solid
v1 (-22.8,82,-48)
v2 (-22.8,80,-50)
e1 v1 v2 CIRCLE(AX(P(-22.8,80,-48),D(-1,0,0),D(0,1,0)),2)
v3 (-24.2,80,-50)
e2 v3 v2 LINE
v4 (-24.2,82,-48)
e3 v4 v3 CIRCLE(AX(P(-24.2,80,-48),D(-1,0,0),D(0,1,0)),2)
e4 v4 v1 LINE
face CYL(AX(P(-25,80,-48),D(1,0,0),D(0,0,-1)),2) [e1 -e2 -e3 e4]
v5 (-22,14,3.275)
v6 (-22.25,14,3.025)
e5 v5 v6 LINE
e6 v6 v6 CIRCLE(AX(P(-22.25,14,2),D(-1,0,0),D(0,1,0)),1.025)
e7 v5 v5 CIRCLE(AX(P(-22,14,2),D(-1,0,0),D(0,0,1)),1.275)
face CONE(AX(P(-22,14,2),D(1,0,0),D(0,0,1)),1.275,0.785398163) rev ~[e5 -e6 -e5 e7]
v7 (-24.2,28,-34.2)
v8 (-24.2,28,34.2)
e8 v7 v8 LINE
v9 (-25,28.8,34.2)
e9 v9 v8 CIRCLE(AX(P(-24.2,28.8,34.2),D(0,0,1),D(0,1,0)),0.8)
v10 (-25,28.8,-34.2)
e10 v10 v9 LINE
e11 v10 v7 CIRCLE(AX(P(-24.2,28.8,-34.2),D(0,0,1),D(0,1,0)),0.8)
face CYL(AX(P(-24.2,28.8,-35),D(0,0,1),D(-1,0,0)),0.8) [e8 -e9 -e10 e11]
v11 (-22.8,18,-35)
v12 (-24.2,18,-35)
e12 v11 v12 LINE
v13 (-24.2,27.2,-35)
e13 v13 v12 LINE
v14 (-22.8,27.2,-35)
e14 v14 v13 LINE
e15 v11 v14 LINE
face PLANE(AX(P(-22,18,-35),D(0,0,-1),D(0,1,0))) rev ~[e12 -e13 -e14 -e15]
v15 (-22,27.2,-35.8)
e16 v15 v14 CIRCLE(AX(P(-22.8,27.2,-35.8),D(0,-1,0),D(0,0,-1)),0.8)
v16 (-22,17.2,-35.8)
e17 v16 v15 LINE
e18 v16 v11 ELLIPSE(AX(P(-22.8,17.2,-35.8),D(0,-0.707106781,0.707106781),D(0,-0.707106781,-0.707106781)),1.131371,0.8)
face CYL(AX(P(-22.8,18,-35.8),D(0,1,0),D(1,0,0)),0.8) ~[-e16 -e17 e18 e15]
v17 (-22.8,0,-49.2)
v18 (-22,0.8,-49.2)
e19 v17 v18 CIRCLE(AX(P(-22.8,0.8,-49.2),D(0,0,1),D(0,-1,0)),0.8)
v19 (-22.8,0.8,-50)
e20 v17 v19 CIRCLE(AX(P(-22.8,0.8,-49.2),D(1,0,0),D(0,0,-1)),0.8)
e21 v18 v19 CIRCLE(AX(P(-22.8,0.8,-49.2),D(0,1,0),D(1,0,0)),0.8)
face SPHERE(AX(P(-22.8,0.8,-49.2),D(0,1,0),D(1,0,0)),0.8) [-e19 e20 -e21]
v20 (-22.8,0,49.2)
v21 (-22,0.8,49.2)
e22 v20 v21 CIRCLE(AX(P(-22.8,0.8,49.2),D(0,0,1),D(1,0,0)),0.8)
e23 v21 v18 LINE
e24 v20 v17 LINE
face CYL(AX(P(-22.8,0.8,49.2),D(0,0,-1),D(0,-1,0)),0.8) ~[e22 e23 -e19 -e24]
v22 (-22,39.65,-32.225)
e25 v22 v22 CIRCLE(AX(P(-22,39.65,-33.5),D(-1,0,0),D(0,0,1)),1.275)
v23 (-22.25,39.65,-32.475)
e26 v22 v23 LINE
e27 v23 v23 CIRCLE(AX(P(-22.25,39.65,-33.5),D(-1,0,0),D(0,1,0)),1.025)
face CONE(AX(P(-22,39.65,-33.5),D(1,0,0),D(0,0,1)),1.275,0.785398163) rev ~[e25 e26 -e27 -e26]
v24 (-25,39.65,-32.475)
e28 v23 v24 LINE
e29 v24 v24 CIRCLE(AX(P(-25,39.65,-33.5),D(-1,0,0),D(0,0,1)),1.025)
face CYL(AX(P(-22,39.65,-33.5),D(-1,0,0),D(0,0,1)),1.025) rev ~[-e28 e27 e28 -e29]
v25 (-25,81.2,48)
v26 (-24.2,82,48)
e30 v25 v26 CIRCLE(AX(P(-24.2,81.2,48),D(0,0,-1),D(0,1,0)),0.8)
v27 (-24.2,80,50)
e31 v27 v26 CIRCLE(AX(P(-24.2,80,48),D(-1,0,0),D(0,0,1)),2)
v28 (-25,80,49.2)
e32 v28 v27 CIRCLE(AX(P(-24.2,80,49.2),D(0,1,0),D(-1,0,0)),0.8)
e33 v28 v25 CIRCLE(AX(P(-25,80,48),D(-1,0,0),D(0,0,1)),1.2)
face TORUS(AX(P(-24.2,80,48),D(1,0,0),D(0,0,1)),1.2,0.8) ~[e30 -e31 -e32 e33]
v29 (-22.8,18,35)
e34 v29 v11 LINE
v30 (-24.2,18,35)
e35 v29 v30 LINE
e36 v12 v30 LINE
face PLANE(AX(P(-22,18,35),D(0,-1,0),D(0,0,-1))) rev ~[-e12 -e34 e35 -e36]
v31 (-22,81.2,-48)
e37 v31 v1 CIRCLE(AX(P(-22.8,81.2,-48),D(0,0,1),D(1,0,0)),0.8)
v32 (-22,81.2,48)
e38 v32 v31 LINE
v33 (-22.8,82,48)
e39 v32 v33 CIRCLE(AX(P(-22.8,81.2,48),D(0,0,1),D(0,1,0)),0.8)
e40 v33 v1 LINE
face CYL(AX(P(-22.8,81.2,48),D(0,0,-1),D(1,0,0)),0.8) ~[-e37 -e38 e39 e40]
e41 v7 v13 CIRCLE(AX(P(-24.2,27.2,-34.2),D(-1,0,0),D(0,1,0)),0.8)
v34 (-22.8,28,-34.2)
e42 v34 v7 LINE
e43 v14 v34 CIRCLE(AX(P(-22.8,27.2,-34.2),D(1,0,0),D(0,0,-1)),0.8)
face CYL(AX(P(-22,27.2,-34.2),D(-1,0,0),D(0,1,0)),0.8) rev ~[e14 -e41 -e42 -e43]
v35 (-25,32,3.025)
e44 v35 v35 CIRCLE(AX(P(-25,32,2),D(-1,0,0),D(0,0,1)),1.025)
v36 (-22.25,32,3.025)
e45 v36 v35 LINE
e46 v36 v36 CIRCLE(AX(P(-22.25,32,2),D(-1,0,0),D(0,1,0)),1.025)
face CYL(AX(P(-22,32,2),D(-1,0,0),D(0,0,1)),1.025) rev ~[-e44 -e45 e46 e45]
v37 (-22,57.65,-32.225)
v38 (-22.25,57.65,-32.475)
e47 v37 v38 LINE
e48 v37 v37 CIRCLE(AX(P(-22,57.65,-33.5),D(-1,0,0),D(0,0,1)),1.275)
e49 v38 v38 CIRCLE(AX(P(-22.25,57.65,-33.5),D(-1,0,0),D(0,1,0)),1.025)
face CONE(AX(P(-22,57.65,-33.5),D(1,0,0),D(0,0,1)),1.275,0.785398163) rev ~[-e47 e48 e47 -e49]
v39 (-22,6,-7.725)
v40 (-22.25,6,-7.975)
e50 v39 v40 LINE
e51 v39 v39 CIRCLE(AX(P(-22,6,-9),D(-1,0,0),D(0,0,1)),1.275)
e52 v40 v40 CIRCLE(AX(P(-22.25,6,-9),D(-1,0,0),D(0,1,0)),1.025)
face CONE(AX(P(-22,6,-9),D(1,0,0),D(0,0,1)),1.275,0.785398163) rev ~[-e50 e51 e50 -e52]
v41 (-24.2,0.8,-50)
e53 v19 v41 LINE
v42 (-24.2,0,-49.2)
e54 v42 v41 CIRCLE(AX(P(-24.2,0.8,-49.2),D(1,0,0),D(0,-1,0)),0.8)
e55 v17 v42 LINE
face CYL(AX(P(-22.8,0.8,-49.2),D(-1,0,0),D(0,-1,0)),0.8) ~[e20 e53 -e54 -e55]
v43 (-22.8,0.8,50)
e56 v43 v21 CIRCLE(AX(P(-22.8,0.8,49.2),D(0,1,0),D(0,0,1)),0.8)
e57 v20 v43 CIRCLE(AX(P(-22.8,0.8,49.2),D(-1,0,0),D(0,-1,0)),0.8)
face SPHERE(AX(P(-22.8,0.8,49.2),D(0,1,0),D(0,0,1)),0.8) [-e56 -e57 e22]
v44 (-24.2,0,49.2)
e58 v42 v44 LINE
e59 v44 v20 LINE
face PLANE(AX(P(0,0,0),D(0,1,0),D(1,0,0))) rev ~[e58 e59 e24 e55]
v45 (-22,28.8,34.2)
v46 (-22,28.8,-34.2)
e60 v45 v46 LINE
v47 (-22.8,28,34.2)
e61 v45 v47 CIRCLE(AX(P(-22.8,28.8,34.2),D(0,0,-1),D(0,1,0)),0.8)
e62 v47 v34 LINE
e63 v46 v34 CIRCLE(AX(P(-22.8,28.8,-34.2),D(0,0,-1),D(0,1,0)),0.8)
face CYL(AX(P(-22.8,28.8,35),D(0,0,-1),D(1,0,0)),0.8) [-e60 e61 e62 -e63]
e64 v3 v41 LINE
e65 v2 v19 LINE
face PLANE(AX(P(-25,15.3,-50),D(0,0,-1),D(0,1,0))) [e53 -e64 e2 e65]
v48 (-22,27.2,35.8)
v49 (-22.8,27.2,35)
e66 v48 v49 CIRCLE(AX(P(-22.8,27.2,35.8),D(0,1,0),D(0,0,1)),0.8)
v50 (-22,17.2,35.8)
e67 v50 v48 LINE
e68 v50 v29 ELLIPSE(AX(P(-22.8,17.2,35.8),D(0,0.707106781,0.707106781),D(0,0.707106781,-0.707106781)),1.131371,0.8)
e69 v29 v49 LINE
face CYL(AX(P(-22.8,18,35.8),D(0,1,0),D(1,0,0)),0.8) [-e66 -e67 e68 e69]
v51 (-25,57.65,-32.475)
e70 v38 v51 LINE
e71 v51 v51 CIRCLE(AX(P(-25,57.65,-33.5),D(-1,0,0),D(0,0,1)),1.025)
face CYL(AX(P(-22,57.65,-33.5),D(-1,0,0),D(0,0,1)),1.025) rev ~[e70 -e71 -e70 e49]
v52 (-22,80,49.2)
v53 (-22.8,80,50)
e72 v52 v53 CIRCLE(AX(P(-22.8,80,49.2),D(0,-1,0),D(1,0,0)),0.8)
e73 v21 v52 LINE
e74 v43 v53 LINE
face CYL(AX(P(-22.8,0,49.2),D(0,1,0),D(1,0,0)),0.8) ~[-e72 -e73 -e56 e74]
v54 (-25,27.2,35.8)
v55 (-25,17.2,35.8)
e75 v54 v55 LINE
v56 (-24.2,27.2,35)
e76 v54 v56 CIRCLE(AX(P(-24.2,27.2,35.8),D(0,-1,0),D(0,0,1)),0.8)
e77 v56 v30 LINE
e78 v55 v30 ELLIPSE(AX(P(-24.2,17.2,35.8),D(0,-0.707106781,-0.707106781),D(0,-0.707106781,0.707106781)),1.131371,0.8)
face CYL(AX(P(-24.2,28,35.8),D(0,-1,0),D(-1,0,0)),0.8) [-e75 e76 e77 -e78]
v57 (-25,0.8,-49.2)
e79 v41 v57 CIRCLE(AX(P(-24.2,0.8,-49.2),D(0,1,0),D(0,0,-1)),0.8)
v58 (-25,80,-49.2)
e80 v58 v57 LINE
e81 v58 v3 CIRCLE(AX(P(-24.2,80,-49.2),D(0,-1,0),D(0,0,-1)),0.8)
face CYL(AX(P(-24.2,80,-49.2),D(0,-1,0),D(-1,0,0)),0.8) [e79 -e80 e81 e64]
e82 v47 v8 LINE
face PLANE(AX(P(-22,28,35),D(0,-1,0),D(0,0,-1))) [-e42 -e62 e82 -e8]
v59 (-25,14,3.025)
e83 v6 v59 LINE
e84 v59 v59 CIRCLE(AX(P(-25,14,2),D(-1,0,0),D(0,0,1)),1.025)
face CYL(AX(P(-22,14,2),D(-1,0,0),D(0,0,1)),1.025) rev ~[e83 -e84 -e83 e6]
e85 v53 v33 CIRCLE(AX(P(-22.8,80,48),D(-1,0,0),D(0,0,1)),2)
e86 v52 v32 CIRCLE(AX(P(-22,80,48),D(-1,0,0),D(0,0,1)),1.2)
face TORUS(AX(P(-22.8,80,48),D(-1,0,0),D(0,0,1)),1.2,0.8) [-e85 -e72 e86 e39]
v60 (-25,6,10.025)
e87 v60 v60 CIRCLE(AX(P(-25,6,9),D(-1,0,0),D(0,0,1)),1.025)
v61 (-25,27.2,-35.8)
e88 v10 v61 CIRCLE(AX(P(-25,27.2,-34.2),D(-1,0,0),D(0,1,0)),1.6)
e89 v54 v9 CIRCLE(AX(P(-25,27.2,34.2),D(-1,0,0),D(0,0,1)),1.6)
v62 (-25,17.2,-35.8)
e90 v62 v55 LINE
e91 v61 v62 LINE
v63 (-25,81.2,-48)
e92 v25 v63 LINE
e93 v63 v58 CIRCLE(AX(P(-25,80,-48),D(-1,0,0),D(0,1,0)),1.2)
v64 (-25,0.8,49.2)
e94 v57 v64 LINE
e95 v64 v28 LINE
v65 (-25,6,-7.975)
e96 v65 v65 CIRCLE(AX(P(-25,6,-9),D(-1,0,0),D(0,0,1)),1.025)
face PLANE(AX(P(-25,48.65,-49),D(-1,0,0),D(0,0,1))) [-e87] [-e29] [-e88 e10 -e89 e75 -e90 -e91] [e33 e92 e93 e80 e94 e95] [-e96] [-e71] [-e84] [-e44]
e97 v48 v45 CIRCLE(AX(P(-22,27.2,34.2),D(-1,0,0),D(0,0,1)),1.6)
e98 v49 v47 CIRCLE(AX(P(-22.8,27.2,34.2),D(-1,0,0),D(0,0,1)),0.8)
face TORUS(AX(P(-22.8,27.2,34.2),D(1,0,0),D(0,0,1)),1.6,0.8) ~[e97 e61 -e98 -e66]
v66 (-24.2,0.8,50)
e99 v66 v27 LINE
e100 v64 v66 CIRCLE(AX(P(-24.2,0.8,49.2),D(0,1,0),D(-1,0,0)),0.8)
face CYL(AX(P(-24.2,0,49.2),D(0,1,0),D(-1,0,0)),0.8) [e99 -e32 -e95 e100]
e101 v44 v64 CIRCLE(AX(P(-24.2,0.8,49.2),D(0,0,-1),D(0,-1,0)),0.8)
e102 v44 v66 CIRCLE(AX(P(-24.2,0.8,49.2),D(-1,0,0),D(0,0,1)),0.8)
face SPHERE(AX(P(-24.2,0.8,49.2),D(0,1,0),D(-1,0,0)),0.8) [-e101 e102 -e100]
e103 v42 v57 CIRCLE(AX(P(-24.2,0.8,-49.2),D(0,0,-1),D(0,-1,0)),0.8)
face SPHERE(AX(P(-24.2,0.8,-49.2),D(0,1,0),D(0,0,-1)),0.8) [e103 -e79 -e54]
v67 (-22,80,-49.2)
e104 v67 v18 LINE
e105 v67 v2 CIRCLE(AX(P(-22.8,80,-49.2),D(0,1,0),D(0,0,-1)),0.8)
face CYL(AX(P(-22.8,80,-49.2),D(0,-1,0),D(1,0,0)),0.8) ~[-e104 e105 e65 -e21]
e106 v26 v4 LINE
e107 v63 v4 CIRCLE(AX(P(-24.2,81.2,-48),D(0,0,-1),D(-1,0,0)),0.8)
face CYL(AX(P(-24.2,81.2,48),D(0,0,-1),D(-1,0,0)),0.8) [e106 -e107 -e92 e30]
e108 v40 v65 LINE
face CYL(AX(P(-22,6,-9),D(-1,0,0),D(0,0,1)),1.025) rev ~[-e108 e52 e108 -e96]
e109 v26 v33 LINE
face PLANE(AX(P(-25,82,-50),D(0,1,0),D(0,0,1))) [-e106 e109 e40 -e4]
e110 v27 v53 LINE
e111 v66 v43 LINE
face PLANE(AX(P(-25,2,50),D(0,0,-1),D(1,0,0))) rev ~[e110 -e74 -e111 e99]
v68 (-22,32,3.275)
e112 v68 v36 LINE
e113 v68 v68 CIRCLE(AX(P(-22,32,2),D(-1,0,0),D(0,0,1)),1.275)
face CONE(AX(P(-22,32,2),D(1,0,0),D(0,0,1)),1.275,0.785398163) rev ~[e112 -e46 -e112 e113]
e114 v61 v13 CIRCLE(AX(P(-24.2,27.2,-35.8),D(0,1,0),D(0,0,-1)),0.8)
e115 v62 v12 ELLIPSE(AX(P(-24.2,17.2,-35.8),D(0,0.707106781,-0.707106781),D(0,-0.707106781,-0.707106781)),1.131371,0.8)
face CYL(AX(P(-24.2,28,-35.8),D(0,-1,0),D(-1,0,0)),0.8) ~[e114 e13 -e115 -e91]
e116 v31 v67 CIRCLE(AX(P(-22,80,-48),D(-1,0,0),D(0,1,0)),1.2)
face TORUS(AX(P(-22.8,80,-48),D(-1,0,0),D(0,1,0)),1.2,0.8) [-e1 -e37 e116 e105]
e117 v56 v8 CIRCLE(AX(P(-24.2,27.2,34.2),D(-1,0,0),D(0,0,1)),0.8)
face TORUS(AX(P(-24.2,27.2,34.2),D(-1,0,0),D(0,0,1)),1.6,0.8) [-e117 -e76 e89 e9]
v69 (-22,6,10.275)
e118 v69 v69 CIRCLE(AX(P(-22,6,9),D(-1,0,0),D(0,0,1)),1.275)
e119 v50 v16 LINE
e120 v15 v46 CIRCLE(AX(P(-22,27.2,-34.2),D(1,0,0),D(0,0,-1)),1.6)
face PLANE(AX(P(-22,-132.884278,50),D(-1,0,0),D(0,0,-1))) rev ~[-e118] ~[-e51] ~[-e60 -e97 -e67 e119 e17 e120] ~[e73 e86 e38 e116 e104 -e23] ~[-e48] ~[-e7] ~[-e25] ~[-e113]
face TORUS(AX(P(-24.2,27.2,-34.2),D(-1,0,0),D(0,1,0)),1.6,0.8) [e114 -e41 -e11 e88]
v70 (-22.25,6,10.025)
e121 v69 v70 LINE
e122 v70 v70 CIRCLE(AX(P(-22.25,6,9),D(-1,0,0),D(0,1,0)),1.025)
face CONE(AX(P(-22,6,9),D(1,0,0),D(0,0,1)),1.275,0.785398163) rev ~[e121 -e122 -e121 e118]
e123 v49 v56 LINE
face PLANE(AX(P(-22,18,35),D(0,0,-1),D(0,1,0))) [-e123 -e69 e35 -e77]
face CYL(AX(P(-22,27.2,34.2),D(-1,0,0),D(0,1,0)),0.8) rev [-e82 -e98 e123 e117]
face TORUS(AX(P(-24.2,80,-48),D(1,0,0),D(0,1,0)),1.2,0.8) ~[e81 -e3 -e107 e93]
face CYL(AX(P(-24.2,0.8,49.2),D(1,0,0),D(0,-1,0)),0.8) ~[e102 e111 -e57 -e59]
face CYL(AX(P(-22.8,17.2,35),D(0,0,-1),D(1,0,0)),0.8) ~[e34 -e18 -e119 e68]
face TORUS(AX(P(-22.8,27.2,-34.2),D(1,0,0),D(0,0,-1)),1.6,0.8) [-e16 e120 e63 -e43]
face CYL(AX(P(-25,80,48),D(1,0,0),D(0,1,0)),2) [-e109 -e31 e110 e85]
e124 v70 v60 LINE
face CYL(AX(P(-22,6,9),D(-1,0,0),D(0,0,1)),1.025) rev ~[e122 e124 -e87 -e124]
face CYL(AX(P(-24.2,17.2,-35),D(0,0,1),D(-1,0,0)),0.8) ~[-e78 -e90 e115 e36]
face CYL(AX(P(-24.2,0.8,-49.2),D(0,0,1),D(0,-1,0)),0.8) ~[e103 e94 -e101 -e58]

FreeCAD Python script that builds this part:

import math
import FreeCAD as App
import Part
import Sketcher


def edges_at(feature, points):
    """Names of the edges that pass closest to the given points."""
    edges = feature.Shape.Edges
    near = lambda p: min(range(len(edges)), key=lambda i: edges[i].distToShape(Part.Vertex(*p))[0])
    return sorted({f"Edge{near(p) + 1}" for p in points})

doc = App.newDocument("Part")
body = doc.addObject("PartDesign::Body", "Body")

sketch1 = doc.addObject("Sketcher::SketchObject", "Sketch")
body.addObject(sketch1)
sketch1.AttachmentSupport = (doc.XZ_Plane, [""])
sketch1.MapMode = "FlatFace"
sketch1.addGeometry([
    Part.LineSegment(App.Vector(-25, -50, 0), App.Vector(-25, 50, 0)),
    Part.LineSegment(App.Vector(-25, 50, 0), App.Vector(25, 50, 0)),
    Part.LineSegment(App.Vector(25, 50, 0), App.Vector(25, -50, 0)),
    Part.LineSegment(App.Vector(25, -50, 0), App.Vector(-25, -50, 0)),
], False)
sketch1.addConstraint([
    Sketcher.Constraint("Coincident", 0, 2, 1, 1),
    Sketcher.Constraint("Coincident", 1, 2, 2, 1),
    Sketcher.Constraint("Coincident", 2, 2, 3, 1),
    Sketcher.Constraint("Coincident", 3, 2, 0, 1),
    Sketcher.Constraint("Vertical", 0),
    Sketcher.Constraint("Horizontal", 1),
    Sketcher.Constraint("Vertical", 2),
    Sketcher.Constraint("Horizontal", 3),
    Sketcher.Constraint("Symmetric", 0, 2, 2, 2, -1, 1),
    Sketcher.Constraint("DistanceX", 1, 1, 1, 2, 50.0),
    Sketcher.Constraint("DistanceY", 0, 1, 0, 2, 100.0),
])
pad1 = doc.addObject("PartDesign::Pad", "Pad")
body.addObject(pad1)
pad1.Profile = sketch1
pad1.Length = 2
pad1.Reversed = True

sketch2 = doc.addObject("Sketcher::SketchObject", "Sketch001")
body.addObject(sketch2)
sketch2.AttachmentSupport = (doc.XZ_Plane, [""])
sketch2.MapMode = "FlatFace"
sketch2.AttachmentOffset = App.Placement(App.Vector(0, 0, -2), App.Rotation())
sketch2.addGeometry([
    Part.LineSegment(App.Vector(-25, -50, 0), App.Vector(-25, 50, 0)),
    Part.LineSegment(App.Vector(-25, 50, 0), App.Vector(-22, 50, 0)),
    Part.LineSegment(App.Vector(-22, 50, 0), App.Vector(-22, -50, 0)),
    Part.LineSegment(App.Vector(-22, -50, 0), App.Vector(-25, -50, 0)),
], False)
sketch2.addConstraint([
    Sketcher.Constraint("Coincident", 0, 2, 1, 1),
    Sketcher.Constraint("Coincident", 1, 2, 2, 1),
    Sketcher.Constraint("Coincident", 2, 2, 3, 1),
    Sketcher.Constraint("Coincident", 3, 2, 0, 1),
    Sketcher.Constraint("Vertical", 0),
    Sketcher.Constraint("Horizontal", 1),
    Sketcher.Constraint("Vertical", 2),
    Sketcher.Constraint("Horizontal", 3),
    Sketcher.Constraint("DistanceX", 1, 1, 1, 2, 3.0),
    Sketcher.Constraint("DistanceY", 0, 1, 0, 2, 100.0),
    Sketcher.Constraint("DistanceX", 0, 2, -1, 1, 25.0),
    Sketcher.Constraint("DistanceY", -1, 1, 0, 2, 50.0),
])
pad2 = doc.addObject("PartDesign::Pad", "Pad001")
body.addObject(pad2)
pad2.Profile = sketch2
pad2.Length = 80
pad2.Reversed = True

sketch3 = doc.addObject("Sketcher::SketchObject", "Sketch002")
body.addObject(sketch3)
sketch3.AttachmentSupport = (doc.YZ_Plane, [""])
sketch3.MapMode = "FlatFace"
sketch3.AttachmentOffset = App.Placement(App.Vector(0, 0, -25), App.Rotation())
sketch3.addGeometry([
    Part.LineSegment(App.Vector(82, -50, 0), App.Vector(15.3, -50, 0)),
    Part.LineSegment(App.Vector(15.3, -50, 0), App.Vector(15.3, -48, 0)),
    Part.LineSegment(App.Vector(15.3, -48, 0), App.Vector(82, -48, 0)),
    Part.LineSegment(App.Vector(82, -48, 0), App.Vector(82, -50, 0)),
], False)
sketch3.addConstraint([
    Sketcher.Constraint("Coincident", 0, 2, 1, 1),
    Sketcher.Constraint("Coincident", 1, 2, 2, 1),
    Sketcher.Constraint("Coincident", 2, 2, 3, 1),
    Sketcher.Constraint("Coincident", 3, 2, 0, 1),
    Sketcher.Constraint("Horizontal", 0),
    Sketcher.Constraint("Vertical", 1),
    Sketcher.Constraint("Horizontal", 2),
    Sketcher.Constraint("Vertical", 3),
    Sketcher.Constraint("DistanceY", 1, 1, 1, 2, 2.0),
    Sketcher.Constraint("DistanceX", 0, 2, 0, 1, 66.7),
    Sketcher.Constraint("DistanceY", 0, 2, -1, 1, 50.0),
    Sketcher.Constraint("DistanceX", -1, 1, 2, 2, 82.0),
])
pad3 = doc.addObject("PartDesign::Pad", "Pad002")
body.addObject(pad3)
pad3.Profile = sketch3
pad3.Length = 70
pad3.Reversed = True

sketch4 = doc.addObject("Sketcher::SketchObject", "Sketch003")
body.addObject(sketch4)
sketch4.AttachmentSupport = (doc.XY_Plane, [""])
sketch4.MapMode = "FlatFace"
sketch4.AttachmentOffset = App.Placement(App.Vector(0, 0, -50), App.Rotation())
sketch4.addGeometry([
    Part.LineSegment(App.Vector(-95, 82, 0), App.Vector(-61.65, 82, 0)),
    Part.ArcOfCircle(Part.Circle(App.Vector(-61.65, 48.65, 0), App.Vector(0, 0, 1), 33.35), math.radians(90), math.radians(180)),
    Part.LineSegment(App.Vector(-95, 48.65, 0), App.Vector(-95, 82, 0)),
], False)
sketch4.addConstraint([
    Sketcher.Constraint("Tangent", 0, 2, 1, 1),
    Sketcher.Constraint("Tangent", 1, 2, 2, 1),
    Sketcher.Constraint("Coincident", 2, 2, 0, 1),
    Sketcher.Constraint("Horizontal", 0),
    Sketcher.Constraint("Vertical", 2),
    Sketcher.Constraint("Radius", 1, 33.35),
    Sketcher.Constraint("DistanceY", -1, 1, 0, 2, 82.0),
    Sketcher.Constraint("DistanceX", 1, 2, -1, 1, 95.0),
])
pocket1 = doc.addObject("PartDesign::Pocket", "Pocket")
body.addObject(pocket1)
pocket1.Profile = sketch4
pocket1.Type = "UpToFirst"
pocket1.Reversed = True

sketch5 = doc.addObject("Sketcher::SketchObject", "Sketch004")
body.addObject(sketch5)
sketch5.AttachmentSupport = (doc.XY_Plane, [""])
sketch5.MapMode = "FlatFace"
sketch5.AttachmentOffset = App.Placement(App.Vector(0, 0, -50), App.Rotation())
sketch5.addGeometry([
    Part.ArcOfCircle(Part.Circle(App.Vector(-61.65, 48.65, 0), App.Vector(0, 0, 1), 33.35), math.radians(180), math.radians(270)),
    Part.LineSegment(App.Vector(-61.65, 15.3, 0), App.Vector(-95, 15.3, 0)),
    Part.LineSegment(App.Vector(-95, 15.3, 0), App.Vector(-95, 48.65, 0)),
], False)
sketch5.addConstraint([
    Sketcher.Constraint("Tangent", 0, 2, 1, 1),
    Sketcher.Constraint("Coincident", 1, 2, 2, 1),
    Sketcher.Constraint("Tangent", 2, 2, 0, 1),
    Sketcher.Constraint("Horizontal", 1),
    Sketcher.Constraint("Vertical", 2),
    Sketcher.Constraint("Radius", 0, 33.35),
    Sketcher.Constraint("DistanceX", 1, 2, -1, 1, 95.0),
    Sketcher.Constraint("DistanceY", -1, 1, 0, 2, 15.3),
])
pocket2 = doc.addObject("PartDesign::Pocket", "Pocket001")
body.addObject(pocket2)
pocket2.Profile = sketch5
pocket2.Type = "UpToFirst"
pocket2.Reversed = True

sketch6 = doc.addObject("Sketcher::SketchObject", "Sketch005")
body.addObject(sketch6)
sketch6.AttachmentSupport = (doc.YZ_Plane, [""])
sketch6.MapMode = "FlatFace"
sketch6.AttachmentOffset = App.Placement(App.Vector(0, 0, -25), App.Rotation())
sketch6.addGeometry([
    Part.LineSegment(App.Vector(82, 6, 0), App.Vector(15.3, 6, 0)),
    Part.LineSegment(App.Vector(15.3, 6, 0), App.Vector(15.3, 8, 0)),
    Part.LineSegment(App.Vector(15.3, 8, 0), App.Vector(82, 8, 0)),
    Part.LineSegment(App.Vector(82, 8, 0), App.Vector(82, 6, 0)),
], False)
sketch6.addConstraint([
    Sketcher.Constraint("Coincident", 0, 2, 1, 1),
    Sketcher.Constraint("Coincident", 1, 2, 2, 1),
    Sketcher.Constraint("Coincident", 2, 2, 3, 1),
    Sketcher.Constraint("Coincident", 3, 2, 0, 1),
    Sketcher.Constraint("Horizontal", 0),
    Sketcher.Constraint("Vertical", 1),
    Sketcher.Constraint("Horizontal", 2),
    Sketcher.Constraint("Vertical", 3),
    Sketcher.Constraint("DistanceY", 1, 1, 1, 2, 2.0),
    Sketcher.Constraint("DistanceX", 0, 2, 0, 1, 66.7),
    Sketcher.Constraint("DistanceY", -1, 1, 0, 2, 6.0),
    Sketcher.Constraint("DistanceX", -1, 1, 2, 2, 82.0),
])
pad4 = doc.addObject("PartDesign::Pad", "Pad003")
body.addObject(pad4)
pad4.Profile = sketch6
pad4.Length = 70
pad4.Reversed = True

sketch7 = doc.addObject("Sketcher::SketchObject", "Sketch006")
body.addObject(sketch7)
sketch7.AttachmentSupport = (doc.XY_Plane, [""])
sketch7.MapMode = "FlatFace"
sketch7.AttachmentOffset = App.Placement(App.Vector(0, 0, 8), App.Rotation())
sketch7.addGeometry([
    Part.ArcOfCircle(Part.Circle(App.Vector(-61.65, 48.65, 0), App.Vector(0, 0, 1), 33.35), math.radians(90), math.radians(180)),
    Part.LineSegment(App.Vector(-61.65, 82, 0), App.Vector(-95, 82, 0)),
    Part.LineSegment(App.Vector(-95, 82, 0), App.Vector(-95, 48.65, 0)),
], False)
sketch7.addConstraint([
    Sketcher.Constraint("Tangent", 0, 1, 1, 1),
    Sketcher.Constraint("Coincident", 1, 2, 2, 1),
    Sketcher.Constraint("Tangent", 2, 2, 0, 2),
    Sketcher.Constraint("Horizontal", 1),
    Sketcher.Constraint("Vertical", 2),
    Sketcher.Constraint("Radius", 0, 33.35),
    Sketcher.Constraint("DistanceY", -1, 1, 0, 1, 82.0),
    Sketcher.Constraint("DistanceX", 1, 2, -1, 1, 95.0),
])
pocket3 = doc.addObject("PartDesign::Pocket", "Pocket002")
body.addObject(pocket3)
pocket3.Profile = sketch7
pocket3.Type = "UpToFirst"

sketch8 = doc.addObject("Sketcher::SketchObject", "Sketch007")
body.addObject(sketch8)
sketch8.AttachmentSupport = (doc.XY_Plane, [""])
sketch8.MapMode = "FlatFace"
sketch8.AttachmentOffset = App.Placement(App.Vector(0, 0, 8), App.Rotation())
sketch8.addGeometry([
    Part.ArcOfCircle(Part.Circle(App.Vector(-61.65, 48.65, 0), App.Vector(0, 0, 1), 33.35), math.radians(180), math.radians(270)),
    Part.LineSegment(App.Vector(-95, 48.65, 0), App.Vector(-95, 15.3, 0)),
    Part.LineSegment(App.Vector(-95, 15.3, 0), App.Vector(-61.65, 15.3, 0)),
], False)
sketch8.addConstraint([
    Sketcher.Constraint("Tangent", 0, 1, 1, 1),
    Sketcher.Constraint("Coincident", 1, 2, 2, 1),
    Sketcher.Constraint("Tangent", 2, 2, 0, 2),
    Sketcher.Constraint("Vertical", 1),
    Sketcher.Constraint("Horizontal", 2),
    Sketcher.Constraint("Radius", 0, 33.35),
    Sketcher.Constraint("DistanceX", 0, 1, -1, 1, 95.0),
    Sketcher.Constraint("DistanceY", -1, 1, 1, 2, 15.3),
])
pocket4 = doc.addObject("PartDesign::Pocket", "Pocket003")
body.addObject(pocket4)
pocket4.Profile = sketch8
pocket4.Type = "UpToFirst"

sketch9 = doc.addObject("Sketcher::SketchObject", "Sketch008")
body.addObject(sketch9)
sketch9.AttachmentSupport = (doc.XY_Plane, [""])
sketch9.MapMode = "FlatFace"
sketch9.AttachmentOffset = App.Placement(App.Vector(0, 0, 8), App.Rotation())
sketch9.addGeometry([
    Part.Circle(App.Vector(-78.970508, 38.65, 0), App.Vector(0, 0, 1), 1.25),
    Part.Circle(App.Vector(-61.65, 68.65, 0), App.Vector(0, 0, 1), 1.25),
    Part.Circle(App.Vector(-44.329492, 38.65, 0), App.Vector(0, 0, 1), 1.25),
], False)
sketch9.addConstraint([
    Sketcher.Constraint("Equal", 0, 1),
    Sketcher.Constraint("Equal", 1, 2),
    Sketcher.Constraint("Horizontal", 0, 3, 2, 3),
    Sketcher.Constraint("Diameter", 0, 2.5),
    Sketcher.Constraint("DistanceY", 0, 3, 1, 3, 30.0),
    Sketcher.Constraint("DistanceY", -1, 1, 0, 3, 38.65),
    Sketcher.Constraint("DistanceX", 1, 3, -1, 1, 61.65),
    Sketcher.Constraint("DistanceX", 0, 3, -1, 1, 78.970508),
    Sketcher.Constraint("DistanceX", 2, 3, -1, 1, 44.329492),
])
doc.recompute()
hole = doc.addObject("PartDesign::Hole", "Hole")
body.addObject(hole)
hole.Profile = sketch9
hole.ThreadType = "None"
hole.Diameter = 2.5
hole.DepthType = "Dimension"
hole.Depth = 2
hole.DrillPoint = "Flat"
hole.HoleCutType = "Countersink"
hole.HoleCutDiameter = 3.05
hole.HoleCutCountersinkAngle = 90
doc.recompute()

fillet = doc.addObject("PartDesign::Fillet", "Fillet")
body.addObject(fillet)
fillet.Base = (hole, edges_at(hole, [(-23.5, 82, 50), (25, 1, 50), (25, 1, -50)]))
fillet.Radius = 2

sketch10 = doc.addObject("Sketcher::SketchObject", "Sketch009")
body.addObject(sketch10)
sketch10.AttachmentSupport = (doc.XY_Plane, [""])
sketch10.MapMode = "FlatFace"
sketch10.AttachmentOffset = App.Placement(App.Vector(0, 0, 8), App.Rotation())
sketch10.addGeometry(Part.Circle(App.Vector(-61.65, 48.65, 0), App.Vector(0, 0, 1), 11), False)
sketch10.addConstraint([
    Sketcher.Constraint("Diameter", 0, 22.0),
    Sketcher.Constraint("DistanceX", 0, 3, -1, 1, 61.65),
    Sketcher.Constraint("DistanceY", -1, 1, 0, 3, 48.65),
])
pocket5 = doc.addObject("PartDesign::Pocket", "Pocket004")
body.addObject(pocket5)
pocket5.Profile = sketch10
pocket5.Type = "UpToFirst"

sketch11 = doc.addObject("Sketcher::SketchObject", "Sketch010")
body.addObject(sketch11)
sketch11.AttachmentSupport = (doc.XY_Plane, [""])
sketch11.MapMode = "FlatFace"
sketch11.AttachmentOffset = App.Placement(App.Vector(0, 0, -50), App.Rotation())
sketch11.addGeometry(Part.Circle(App.Vector(-61.65, 48.65, 0), App.Vector(0, 0, 1), 14.5), False)
sketch11.addConstraint([
    Sketcher.Constraint("Diameter", 0, 29.0),
    Sketcher.Constraint("DistanceX", 0, 3, -1, 1, 61.65),
    Sketcher.Constraint("DistanceY", -1, 1, 0, 3, 48.65),
])
pocket6 = doc.addObject("PartDesign::Pocket", "Pocket005")
body.addObject(pocket6)
pocket6.Profile = sketch11
pocket6.Type = "UpToFirst"
pocket6.Reversed = True

sketch12 = doc.addObject("Sketcher::SketchObject", "Sketch011")
body.addObject(sketch12)
sketch12.AttachmentSupport = (doc.YZ_Plane, [""])
sketch12.MapMode = "FlatFace"
sketch12.AttachmentOffset = App.Placement(App.Vector(0, 0, -25), App.Rotation())
sketch12.addGeometry([
    Part.LineSegment(App.Vector(82, -39.5, 0), App.Vector(15.3, -39.5, 0)),
    Part.LineSegment(App.Vector(15.3, -39.5, 0), App.Vector(15.3, -37.5, 0)),
    Part.LineSegment(App.Vector(15.3, -37.5, 0), App.Vector(82, -37.5, 0)),
    Part.LineSegment(App.Vector(82, -37.5, 0), App.Vector(82, -39.5, 0)),
], False)
sketch12.addConstraint([
    Sketcher.Constraint("Coincident", 0, 2, 1, 1),
    Sketcher.Constraint("Coincident", 1, 2, 2, 1),
    Sketcher.Constraint("Coincident", 2, 2, 3, 1),
    Sketcher.Constraint("Coincident", 3, 2, 0, 1),
    Sketcher.Constraint("Horizontal", 0),
    Sketcher.Constraint("Vertical", 1),
    Sketcher.Constraint("Horizontal", 2),
    Sketcher.Constraint("Vertical", 3),
    Sketcher.Constraint("DistanceY", 1, 1, 1, 2, 2.0),
    Sketcher.Constraint("DistanceX", 0, 2, 0, 1, 66.7),
    Sketcher.Constraint("DistanceX", -1, 1, 2, 2, 82.0),
    Sketcher.Constraint("DistanceY", 0, 2, -1, 1, 39.5),
])
pad5 = doc.addObject("PartDesign::Pad", "Pad004")
body.addObject(pad5)
pad5.Profile = sketch12
pad5.Length = 70
pad5.Reversed = True

sketch13 = doc.addObject("Sketcher::SketchObject", "Sketch012")
body.addObject(sketch13)
sketch13.AttachmentSupport = (doc.XY_Plane, [""])
sketch13.MapMode = "FlatFace"
sketch13.AttachmentOffset = App.Placement(App.Vector(0, 0, -39.5), App.Rotation())
sketch13.addGeometry(Part.Circle(App.Vector(-61.65, 48.65, 0), App.Vector(0, 0, 1), 5.1), False)
sketch13.addConstraint([
    Sketcher.Constraint("Diameter", 0, 10.2),
    Sketcher.Constraint("DistanceX", 0, 3, -1, 1, 61.65),
    Sketcher.Constraint("DistanceY", -1, 1, 0, 3, 48.65),
])
pocket7 = doc.addObject("PartDesign::Pocket", "Pocket006")
body.addObject(pocket7)
pocket7.Profile = sketch13
pocket7.Type = "UpToFirst"
pocket7.Reversed = True

sketch14 = doc.addObject("Sketcher::SketchObject", "Sketch013")
body.addObject(sketch14)
sketch14.AttachmentSupport = (doc.XY_Plane, [""])
sketch14.MapMode = "FlatFace"
sketch14.AttachmentOffset = App.Placement(App.Vector(0, 0, -39.5), App.Rotation())
sketch14.addGeometry([
    Part.LineSegment(App.Vector(-95, 15.3, 0), App.Vector(-95, 48.65, 0)),
    Part.ArcOfCircle(Part.Circle(App.Vector(-61.65, 48.65, 0), App.Vector(0, 0, 1), 33.35), math.radians(180), math.radians(270)),
    Part.LineSegment(App.Vector(-61.65, 15.3, 0), App.Vector(-95, 15.3, 0)),
    Part.LineSegment(App.Vector(-95, 48.65, 0), App.Vector(-95, 82, 0)),
    Part.LineSegment(App.Vector(-95, 82, 0), App.Vector(-61.65, 82, 0)),
    Part.ArcOfCircle(Part.Circle(App.Vector(-61.65, 48.65, 0), App.Vector(0, 0, 1), 33.35), math.radians(90), math.radians(180)),
], False)
sketch14.addConstraint([
    Sketcher.Constraint("Tangent", 0, 2, 1, 1),
    Sketcher.Constraint("Tangent", 1, 2, 2, 1),
    Sketcher.Constraint("Coincident", 2, 2, 0, 1),
    Sketcher.Constraint("Coincident", 3, 2, 4, 1),
    Sketcher.Constraint("Tangent", 4, 2, 5, 1),
    Sketcher.Constraint("Tangent", 5, 2, 3, 1),
    Sketcher.Constraint("Vertical", 0),
    Sketcher.Constraint("Horizontal", 2),
    Sketcher.Constraint("Vertical", 3),
    Sketcher.Constraint("Horizontal", 4),
    Sketcher.Constraint("Coincident", 5, 3, 1, 3),
    Sketcher.Constraint("Equal", 1, 5),
    Sketcher.Constraint("Radius", 1, 33.35),
    Sketcher.Constraint("DistanceX", 0, 2, -1, 1, 95.0),
    Sketcher.Constraint("DistanceY", -1, 1, 3, 2, 82.0),
])
pocket8 = doc.addObject("PartDesign::Pocket", "Pocket007")
body.addObject(pocket8)
pocket8.Profile = sketch14
pocket8.Type = "ThroughAll"
pocket8.Midplane = True

sketch15 = doc.addObject("Sketcher::SketchObject", "Sketch014")
body.addObject(sketch15)
sketch15.AttachmentSupport = (doc.YZ_Plane, [""])
sketch15.MapMode = "FlatFace"
sketch15.AttachmentOffset = App.Placement(App.Vector(0, 0, -25), App.Rotation())
sketch15.addGeometry([
    Part.LineSegment(App.Vector(82, -50, 0), App.Vector(15.3, -50, 0)),
    Part.LineSegment(App.Vector(15.3, -50, 0), App.Vector(15.3, -48, 0)),
    Part.LineSegment(App.Vector(15.3, -48, 0), App.Vector(82, -48, 0)),
    Part.LineSegment(App.Vector(82, -48, 0), App.Vector(82, -50, 0)),
], False)
sketch15.addConstraint([
    Sketcher.Constraint("Coincident", 0, 2, 1, 1),
    Sketcher.Constraint("Coincident", 1, 2, 2, 1),
    Sketcher.Constraint("Coincident", 2, 2, 3, 1),
    Sketcher.Constraint("Coincident", 3, 2, 0, 1),
    Sketcher.Constraint("Horizontal", 0),
    Sketcher.Constraint("Vertical", 1),
    Sketcher.Constraint("Horizontal", 2),
    Sketcher.Constraint("Vertical", 3),
    Sketcher.Constraint("DistanceY", 1, 1, 1, 2, 2.0),
    Sketcher.Constraint("DistanceX", 0, 2, 0, 1, 66.7),
    Sketcher.Constraint("DistanceY", 0, 2, -1, 1, 50.0),
    Sketcher.Constraint("DistanceX", -1, 1, 2, 2, 82.0),
])
pocket9 = doc.addObject("PartDesign::Pocket", "Pocket008")
body.addObject(pocket9)
pocket9.Profile = sketch15
pocket9.Type = "ThroughAll"
doc.recompute()

fillet2 = doc.addObject("PartDesign::Fillet", "Fillet001")
body.addObject(fillet2)
fillet2.Base = (pocket9, edges_at(pocket9, [(-23.5, 82, -50)]))
fillet2.Radius = 2

sketch16 = doc.addObject("Sketcher::SketchObject", "Sketch015")
body.addObject(sketch16)
sketch16.AttachmentSupport = (doc.XZ_Plane, [""])
sketch16.MapMode = "FlatFace"
sketch16.AttachmentOffset = App.Placement(App.Vector(0, 0, -2), App.Rotation())
sketch16.addGeometry([
    Part.LineSegment(App.Vector(-22, -50, 0), App.Vector(-22, 50, 0)),
    Part.LineSegment(App.Vector(-22, 50, 0), App.Vector(25, 50, 0)),
    Part.LineSegment(App.Vector(25, 50, 0), App.Vector(25, -50, 0)),
    Part.LineSegment(App.Vector(25, -50, 0), App.Vector(-22, -50, 0)),
    Part.LineSegment(App.Vector(-95, -39.5, 0), App.Vector(-95, -37.5, 0)),
    Part.LineSegment(App.Vector(-95, -37.5, 0), App.Vector(-25, -37.5, 0)),
    Part.LineSegment(App.Vector(-25, -37.5, 0), App.Vector(-25, -39.5, 0)),
    Part.LineSegment(App.Vector(-25, -39.5, 0), App.Vector(-95, -39.5, 0)),
    Part.LineSegment(App.Vector(-95, 6, 0), App.Vector(-95, 8, 0)),
    Part.LineSegment(App.Vector(-95, 8, 0), App.Vector(-25, 8, 0)),
    Part.LineSegment(App.Vector(-25, 8, 0), App.Vector(-25, 6, 0)),
    Part.LineSegment(App.Vector(-25, 6, 0), App.Vector(-95, 6, 0)),
], False)
sketch16.addConstraint([
    Sketcher.Constraint("Coincident", 0, 2, 1, 1),
    Sketcher.Constraint("Coincident", 1, 2, 2, 1),
    Sketcher.Constraint("Coincident", 2, 2, 3, 1),
    Sketcher.Constraint("Coincident", 3, 2, 0, 1),
    Sketcher.Constraint("Coincident", 4, 2, 5, 1),
    Sketcher.Constraint("Coincident", 5, 2, 6, 1),
    Sketcher.Constraint("Coincident", 6, 2, 7, 1),
    Sketcher.Constraint("Coincident", 7, 2, 4, 1),
    Sketcher.Constraint("Coincident", 8, 2, 9, 1),
    Sketcher.Constraint("Coincident", 9, 2, 10, 1),
    Sketcher.Constraint("Coincident", 10, 2, 11, 1),
    Sketcher.Constraint("Coincident", 11, 2, 8, 1),
    Sketcher.Constraint("Vertical", 0),
    Sketcher.Constraint("Horizontal", 1),
    Sketcher.Constraint("Vertical", 2),
    Sketcher.Constraint("Horizontal", 3),
    Sketcher.Constraint("Vertical", 4),
    Sketcher.Constraint("Horizontal", 5),
    Sketcher.Constraint("Vertical", 6),
    Sketcher.Constraint("Horizontal", 7),
    Sketcher.Constraint("Vertical", 8),
    Sketcher.Constraint("Horizontal", 9),
    Sketcher.Constraint("Vertical", 10),
    Sketcher.Constraint("Horizontal", 11),
    Sketcher.Constraint("Vertical", 7, 2, 8, 2),
    Sketcher.Constraint("Vertical", 6, 2, 9, 2),
    Sketcher.Constraint("Equal", 6, 8),
    Sketcher.Constraint("DistanceX", 1, 1, 1, 2, 47.0),
    Sketcher.Constraint("DistanceX", 5, 1, 5, 2, 70.0),
    Sketcher.Constraint("DistanceY", 0, 1, 0, 2, 100.0),
    Sketcher.Constraint("DistanceY", 4, 1, 4, 2, 2.0),
    Sketcher.Constraint("DistanceX", 0, 2, -1, 1, 22.0),
    Sketcher.Constraint("DistanceY", -1, 1, 0, 2, 50.0),
    Sketcher.Constraint("DistanceX", 4, 2, -1, 1, 95.0),
    Sketcher.Constraint("DistanceY", -1, 1, 8, 2, 8.0),
    Sketcher.Constraint("DistanceY", 4, 2, -1, 1, 37.5),
])
pocket10 = doc.addObject("PartDesign::Pocket", "Pocket009")
body.addObject(pocket10)
pocket10.Profile = sketch16
pocket10.Type = "ThroughAll"
pocket10.Midplane = True

sketch17 = doc.addObject("Sketcher::SketchObject", "Sketch016")
body.addObject(sketch17)
sketch17.AttachmentSupport = (doc.YZ_Plane, [""])
sketch17.MapMode = "FlatFace"
sketch17.AttachmentOffset = App.Placement(App.Vector(0, 0, -22), App.Rotation())
sketch17.addGeometry([
    Part.Circle(App.Vector(14, 2, 0), App.Vector(0, 0, 1), 1.025),
    Part.Circle(App.Vector(6, 9, 0), App.Vector(0, 0, 1), 1.025),
    Part.Circle(App.Vector(6, -9, 0), App.Vector(0, 0, 1), 1.025),
    Part.Circle(App.Vector(57.65, -33.5, 0), App.Vector(0, 0, 1), 1.025),
    Part.Circle(App.Vector(39.65, -33.5, 0), App.Vector(0, 0, 1), 1.025),
    Part.Circle(App.Vector(32, 2, 0), App.Vector(0, 0, 1), 1.025),
], False)
sketch17.addConstraint([
    Sketcher.Constraint("Equal", 0, 1),
    Sketcher.Constraint("Equal", 1, 2),
    Sketcher.Constraint("Equal", 2, 3),
    Sketcher.Constraint("Equal", 3, 4),
    Sketcher.Constraint("Equal", 4, 5),
    Sketcher.Constraint("Symmetric", 1, 3, 2, 3, -1),
    Sketcher.Constraint("Horizontal", 3, 3, 4, 3),
    Sketcher.Constraint("Horizontal", 0, 3, 5, 3),
    Sketcher.Constraint("Diameter", 0, 2.05),
    Sketcher.Constraint("DistanceX", -1, 1, 0, 3, 14.0),
    Sketcher.Constraint("DistanceY", -1, 1, 0, 3, 2.0),
    Sketcher.Constraint("DistanceX", -1, 1, 1, 3, 6.0),
    Sketcher.Constraint("DistanceY", -1, 1, 1, 3, 9.0),
    Sketcher.Constraint("DistanceX", -1, 1, 5, 3, 32.0),
    Sketcher.Constraint("DistanceX", 4, 3, 3, 3, 18.0),
    Sketcher.Constraint("DistanceY", 3, 3, -1, 1, 33.5),
    Sketcher.Constraint("DistanceX", -1, 1, 3, 3, 57.65),
])
doc.recompute()
hole2 = doc.addObject("PartDesign::Hole", "Hole001")
body.addObject(hole2)
hole2.Profile = sketch17
hole2.ThreadType = "None"
hole2.Diameter = 2.05
hole2.DepthType = "ThroughAll"
hole2.HoleCutType = "Countersink"
hole2.HoleCutDiameter = 2.55
hole2.HoleCutCountersinkAngle = 90

sketch18 = doc.addObject("Sketcher::SketchObject", "Sketch017")
body.addObject(sketch18)
sketch18.AttachmentSupport = (doc.YZ_Plane, [""])
sketch18.MapMode = "FlatFace"
sketch18.AttachmentOffset = App.Placement(App.Vector(0, 0, -22), App.Rotation())
sketch18.addGeometry([
    Part.LineSegment(App.Vector(28, 35, 0), App.Vector(18, 35, 0)),
    Part.LineSegment(App.Vector(18, 35, 0), App.Vector(18, -35, 0)),
    Part.LineSegment(App.Vector(18, -35, 0), App.Vector(28, -35, 0)),
    Part.LineSegment(App.Vector(28, -35, 0), App.Vector(28, 35, 0)),
], False)
sketch18.addConstraint([
    Sketcher.Constraint("Coincident", 0, 2, 1, 1),
    Sketcher.Constraint("Coincident", 1, 2, 2, 1),
    Sketcher.Constraint("Coincident", 2, 2, 3, 1),
    Sketcher.Constraint("Coincident", 3, 2, 0, 1),
    Sketcher.Constraint("Horizontal", 0),
    Sketcher.Constraint("Vertical", 1),
    Sketcher.Constraint("Horizontal", 2),
    Sketcher.Constraint("Vertical", 3),
    Sketcher.Constraint("DistanceX", 0, 2, 0, 1, 10.0),
    Sketcher.Constraint("DistanceY", 1, 2, 1, 1, 70.0),
    Sketcher.Constraint("DistanceX", -1, 1, 0, 2, 18.0),
    Sketcher.Constraint("DistanceY", -1, 1, 0, 2, 35.0),
])
pocket11 = doc.addObject("PartDesign::Pocket", "Pocket010")
body.addObject(pocket11)
pocket11.Profile = sketch18
pocket11.Type = "ThroughAll"
doc.recompute()

fillet3 = doc.addObject("PartDesign::Fillet", "Fillet002")
body.addObject(fillet3)
fillet3.Base = (pocket11, edges_at(pocket11, [
    (-22, 82, 0),
    (-22, 40, 50),
    (-22, 81.414, 49.414),
    (-25, 40, 50),
    (-25, 81.414, 49.414),
    (-25, 40, -50),
    (-25, 81.414, -49.414),
    (-22, 40, -50),
    (-22, 81.414, -49.414),
    (-25, 23, 35),
    (-25, 28, 0),
    (-23.5, 28, 35),
    (-25, 23, -35),
    (-23.5, 28, -35),
    (-25, 18, 0),
    (-22, 23, 35),
    (-22, 18, 0),
    (-22, 23, -35),
    (-22, 28, 0),
    (-25, 82, 0),
]))
fillet3.Radius = 0.8
doc.recompute()

fillet4 = doc.addObject("PartDesign::Fillet", "Fillet003")
body.addObject(fillet4)
fillet4.Base = (fillet3, edges_at(fillet3, [
    (-25, 0, 0),
    (-22, 0, 0),
    (-23.5, 0, 50),
    (-23.5, 0, -50),
    (-22.234, 0, -49.766),
    (-24.766, 0, -49.766),
    (-22.234, 0, 49.766),
    (-24.766, 0, 49.766),
]))
fillet4.Radius = 0.8

doc.recompute()
